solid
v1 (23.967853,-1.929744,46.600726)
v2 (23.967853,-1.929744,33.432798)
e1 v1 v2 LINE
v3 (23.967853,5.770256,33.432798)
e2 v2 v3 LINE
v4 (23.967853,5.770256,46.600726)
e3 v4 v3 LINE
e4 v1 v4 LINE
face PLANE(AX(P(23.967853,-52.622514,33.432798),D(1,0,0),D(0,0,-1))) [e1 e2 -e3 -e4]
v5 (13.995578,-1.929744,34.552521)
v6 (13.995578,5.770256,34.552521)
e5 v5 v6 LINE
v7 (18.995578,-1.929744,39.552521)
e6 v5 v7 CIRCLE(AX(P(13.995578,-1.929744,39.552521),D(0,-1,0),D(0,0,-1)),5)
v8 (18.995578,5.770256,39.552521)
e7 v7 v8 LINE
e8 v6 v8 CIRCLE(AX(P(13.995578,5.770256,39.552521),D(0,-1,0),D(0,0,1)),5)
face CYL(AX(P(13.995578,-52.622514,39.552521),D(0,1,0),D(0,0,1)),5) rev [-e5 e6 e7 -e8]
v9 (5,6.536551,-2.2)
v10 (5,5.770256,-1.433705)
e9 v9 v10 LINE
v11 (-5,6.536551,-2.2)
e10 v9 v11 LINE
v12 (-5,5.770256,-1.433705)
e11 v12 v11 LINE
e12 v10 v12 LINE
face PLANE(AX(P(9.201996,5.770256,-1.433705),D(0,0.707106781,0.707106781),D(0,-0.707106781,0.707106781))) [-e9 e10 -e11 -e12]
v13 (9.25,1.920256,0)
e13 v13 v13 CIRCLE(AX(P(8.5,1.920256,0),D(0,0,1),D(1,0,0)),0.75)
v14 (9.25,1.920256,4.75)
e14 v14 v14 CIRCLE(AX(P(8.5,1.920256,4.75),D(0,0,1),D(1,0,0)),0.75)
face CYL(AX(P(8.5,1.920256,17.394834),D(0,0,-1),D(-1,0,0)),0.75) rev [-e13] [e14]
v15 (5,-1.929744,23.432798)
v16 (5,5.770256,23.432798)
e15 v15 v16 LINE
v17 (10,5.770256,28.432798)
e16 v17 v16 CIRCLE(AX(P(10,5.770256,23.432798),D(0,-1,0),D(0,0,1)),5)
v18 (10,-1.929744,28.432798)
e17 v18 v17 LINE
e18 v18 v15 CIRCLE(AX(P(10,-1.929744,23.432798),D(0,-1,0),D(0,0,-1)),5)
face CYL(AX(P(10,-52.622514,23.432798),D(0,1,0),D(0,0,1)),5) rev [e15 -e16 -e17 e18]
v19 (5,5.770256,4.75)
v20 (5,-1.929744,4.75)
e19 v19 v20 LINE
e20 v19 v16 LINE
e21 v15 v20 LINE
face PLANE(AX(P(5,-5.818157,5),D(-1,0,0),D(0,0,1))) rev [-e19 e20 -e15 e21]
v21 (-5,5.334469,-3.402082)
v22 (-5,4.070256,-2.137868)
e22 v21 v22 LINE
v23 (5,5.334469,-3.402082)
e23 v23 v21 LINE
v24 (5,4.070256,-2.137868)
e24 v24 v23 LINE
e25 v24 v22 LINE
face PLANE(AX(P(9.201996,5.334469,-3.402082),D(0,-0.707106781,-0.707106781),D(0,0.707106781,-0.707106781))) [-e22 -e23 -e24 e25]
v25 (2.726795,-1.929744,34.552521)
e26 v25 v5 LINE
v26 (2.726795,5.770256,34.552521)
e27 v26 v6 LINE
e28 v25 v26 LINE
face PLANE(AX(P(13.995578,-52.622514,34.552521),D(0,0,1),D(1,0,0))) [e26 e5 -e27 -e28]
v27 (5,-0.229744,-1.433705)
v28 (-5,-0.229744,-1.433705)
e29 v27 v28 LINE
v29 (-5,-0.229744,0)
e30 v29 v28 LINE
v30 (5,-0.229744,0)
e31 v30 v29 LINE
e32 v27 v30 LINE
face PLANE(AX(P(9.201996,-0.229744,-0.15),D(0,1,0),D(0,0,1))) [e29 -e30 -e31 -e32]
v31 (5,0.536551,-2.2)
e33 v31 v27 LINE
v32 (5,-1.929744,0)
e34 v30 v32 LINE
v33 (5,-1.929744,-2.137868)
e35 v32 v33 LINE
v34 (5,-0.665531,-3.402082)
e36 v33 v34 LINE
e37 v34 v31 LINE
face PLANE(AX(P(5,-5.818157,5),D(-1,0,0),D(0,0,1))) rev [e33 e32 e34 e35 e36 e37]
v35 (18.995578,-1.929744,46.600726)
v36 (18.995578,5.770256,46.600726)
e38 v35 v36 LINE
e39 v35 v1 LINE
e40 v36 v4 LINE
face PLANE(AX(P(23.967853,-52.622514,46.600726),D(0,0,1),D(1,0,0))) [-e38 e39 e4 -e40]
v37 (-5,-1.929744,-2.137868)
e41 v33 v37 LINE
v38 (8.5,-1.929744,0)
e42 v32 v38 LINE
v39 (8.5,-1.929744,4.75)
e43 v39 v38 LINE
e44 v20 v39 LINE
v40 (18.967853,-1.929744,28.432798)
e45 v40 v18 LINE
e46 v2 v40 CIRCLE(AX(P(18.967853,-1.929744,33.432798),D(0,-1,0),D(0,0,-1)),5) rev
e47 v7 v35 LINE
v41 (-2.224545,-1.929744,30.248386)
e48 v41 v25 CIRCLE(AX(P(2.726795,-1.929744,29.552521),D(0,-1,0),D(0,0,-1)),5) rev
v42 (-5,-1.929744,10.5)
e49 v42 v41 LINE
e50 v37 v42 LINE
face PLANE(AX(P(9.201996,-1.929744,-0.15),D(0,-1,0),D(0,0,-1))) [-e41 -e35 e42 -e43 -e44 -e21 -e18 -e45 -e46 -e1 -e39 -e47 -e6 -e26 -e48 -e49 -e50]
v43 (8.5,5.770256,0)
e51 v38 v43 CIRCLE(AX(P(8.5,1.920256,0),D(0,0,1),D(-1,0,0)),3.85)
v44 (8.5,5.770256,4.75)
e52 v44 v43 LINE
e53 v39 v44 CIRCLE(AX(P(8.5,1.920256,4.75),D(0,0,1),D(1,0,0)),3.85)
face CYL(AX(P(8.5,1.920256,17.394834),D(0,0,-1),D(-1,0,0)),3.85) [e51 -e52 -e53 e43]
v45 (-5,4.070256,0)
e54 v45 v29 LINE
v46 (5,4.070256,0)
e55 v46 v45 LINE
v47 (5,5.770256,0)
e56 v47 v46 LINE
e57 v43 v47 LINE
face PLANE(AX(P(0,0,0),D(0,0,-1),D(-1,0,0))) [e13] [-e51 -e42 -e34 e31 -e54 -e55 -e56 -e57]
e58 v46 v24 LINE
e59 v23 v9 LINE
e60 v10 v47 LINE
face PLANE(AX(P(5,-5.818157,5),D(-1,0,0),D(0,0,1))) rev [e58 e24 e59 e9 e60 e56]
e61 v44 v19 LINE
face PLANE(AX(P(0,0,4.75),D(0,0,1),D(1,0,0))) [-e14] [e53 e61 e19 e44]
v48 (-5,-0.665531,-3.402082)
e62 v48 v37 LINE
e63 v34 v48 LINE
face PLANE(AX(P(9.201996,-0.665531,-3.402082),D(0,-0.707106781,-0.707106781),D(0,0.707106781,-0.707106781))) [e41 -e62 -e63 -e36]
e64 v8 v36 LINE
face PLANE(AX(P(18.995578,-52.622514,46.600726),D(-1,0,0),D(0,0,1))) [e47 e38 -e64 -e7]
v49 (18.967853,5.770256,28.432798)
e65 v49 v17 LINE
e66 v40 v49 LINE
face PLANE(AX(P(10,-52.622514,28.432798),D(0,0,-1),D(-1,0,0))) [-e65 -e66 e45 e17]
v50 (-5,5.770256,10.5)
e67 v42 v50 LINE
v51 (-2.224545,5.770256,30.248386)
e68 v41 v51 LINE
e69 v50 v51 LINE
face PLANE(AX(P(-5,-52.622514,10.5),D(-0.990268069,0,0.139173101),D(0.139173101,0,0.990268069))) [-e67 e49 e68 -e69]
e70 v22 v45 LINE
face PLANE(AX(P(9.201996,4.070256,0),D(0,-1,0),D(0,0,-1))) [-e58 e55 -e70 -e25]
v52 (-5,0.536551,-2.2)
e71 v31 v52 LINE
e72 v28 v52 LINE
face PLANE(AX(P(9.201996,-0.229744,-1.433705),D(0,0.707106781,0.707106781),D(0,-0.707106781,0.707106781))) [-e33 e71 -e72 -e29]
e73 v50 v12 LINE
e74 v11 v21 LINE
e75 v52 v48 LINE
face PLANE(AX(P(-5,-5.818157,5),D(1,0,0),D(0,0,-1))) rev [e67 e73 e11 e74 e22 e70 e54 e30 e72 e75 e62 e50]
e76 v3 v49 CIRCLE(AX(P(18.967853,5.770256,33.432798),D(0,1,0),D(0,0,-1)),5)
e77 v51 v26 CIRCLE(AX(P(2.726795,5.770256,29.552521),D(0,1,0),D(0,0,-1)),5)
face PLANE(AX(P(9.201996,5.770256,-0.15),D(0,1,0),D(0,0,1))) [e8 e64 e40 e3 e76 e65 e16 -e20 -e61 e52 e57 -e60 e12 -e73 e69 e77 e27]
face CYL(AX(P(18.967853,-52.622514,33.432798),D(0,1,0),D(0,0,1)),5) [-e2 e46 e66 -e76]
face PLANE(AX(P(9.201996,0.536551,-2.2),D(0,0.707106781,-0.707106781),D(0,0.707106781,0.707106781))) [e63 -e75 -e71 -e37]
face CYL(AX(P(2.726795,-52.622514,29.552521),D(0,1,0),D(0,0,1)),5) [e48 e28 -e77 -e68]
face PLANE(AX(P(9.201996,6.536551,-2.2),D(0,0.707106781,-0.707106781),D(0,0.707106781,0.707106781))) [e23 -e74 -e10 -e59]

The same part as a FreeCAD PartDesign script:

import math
import FreeCAD as App
import Part
import Sketcher
Q = App.Units.Quantity

doc = App.newDocument("Part")
body = doc.addObject("PartDesign::Body", "Body")

sketch1 = doc.addObject("Sketcher::SketchObject", "Sketch")
body.addObject(sketch1)
sketch1.AttachmentSupport = (doc.XY_Plane, [""])
sketch1.MapMode = "FlatFace"
sketch1.addGeometry([
    Part.LineSegment(App.Vector(-5, 9, 0), App.Vector(-5, -6, 0)),
    Part.LineSegment(App.Vector(-5, -6, 0), App.Vector(5, -6, 0)),
    Part.LineSegment(App.Vector(5, -6, 0), App.Vector(5, 9, 0)),
    Part.LineSegment(App.Vector(5, 9, 0), App.Vector(-5, 9, 0)),
], False)
sketch1.addConstraint([
    Sketcher.Constraint("Coincident", 0, 2, 1, 1),
    Sketcher.Constraint("Coincident", 1, 2, 2, 1),
    Sketcher.Constraint("Coincident", 2, 2, 3, 1),
    Sketcher.Constraint("Coincident", 3, 2, 0, 1),
    Sketcher.Constraint("Vertical", 0),
    Sketcher.Constraint("Horizontal", 1),
    Sketcher.Constraint("Vertical", 2),
    Sketcher.Constraint("Horizontal", 3),
    Sketcher.Constraint("DistanceX", 1, 1, 1, 2, Q("10 mm")),
    Sketcher.Constraint("DistanceX", 0, 2, -1, 1, Q("5 mm")),
    Sketcher.Constraint("DistanceY", 0, 2, 0, 1, Q("14.768412 mm")),
    Sketcher.Constraint("DistanceY", 0, 2, -1, 1, Q("5.818157 mm")),
])
pad1 = doc.addObject("PartDesign::Pad", "Pad")
body.addObject(pad1)
pad1.Profile = sketch1
pad1.Length = 5

sketch2 = doc.addObject("Sketcher::SketchObject", "Sketch001")
body.addObject(sketch2)
sketch2.AttachmentSupport = (doc.YZ_Plane, [""])
sketch2.MapMode = "FlatFace"
sketch2.AttachmentOffset = App.Placement(App.Vector(0, 0, -5), App.Rotation())
sketch2.addGeometry([
    Part.LineSegment(App.Vector(5.8, 0, 0), App.Vector(5.8, -1.4, 0)),
    Part.LineSegment(App.Vector(5.8, -1.4, 0), App.Vector(6.5, -2.2, 0)),
    Part.LineSegment(App.Vector(6.5, -2.2, 0), App.Vector(5.3, -3.4, 0)),
    Part.LineSegment(App.Vector(5.3, -3.4, 0), App.Vector(4.1, -2.1, 0)),
    Part.LineSegment(App.Vector(4.1, -2.1, 0), App.Vector(4.1, 0, 0)),
    Part.LineSegment(App.Vector(4.1, 0, 0), App.Vector(5.8, 0, 0)),
    Part.LineSegment(App.Vector(-1.9, 0, 0), App.Vector(-0.2, 0, 0)),
    Part.LineSegment(App.Vector(-0.2, 0, 0), App.Vector(-0.2, -1.4, 0)),
    Part.LineSegment(App.Vector(-0.2, -1.4, 0), App.Vector(0.5, -2.2, 0)),
    Part.LineSegment(App.Vector(0.5, -2.2, 0), App.Vector(-0.7, -3.4, 0)),
    Part.LineSegment(App.Vector(-0.7, -3.4, 0), App.Vector(-1.9, -2.1, 0)),
    Part.LineSegment(App.Vector(-1.9, -2.1, 0), App.Vector(-1.9, 0, 0)),
], False)
sketch2.addConstraint([
    Sketcher.Constraint("Coincident", 0, 2, 1, 1),
    Sketcher.Constraint("Coincident", 1, 2, 2, 1),
    Sketcher.Constraint("Coincident", 2, 2, 3, 1),
    Sketcher.Constraint("Coincident", 3, 2, 4, 1),
    Sketcher.Constraint("Coincident", 4, 2, 5, 1),
    Sketcher.Constraint("Coincident", 5, 2, 0, 1),
    Sketcher.Constraint("Coincident", 6, 2, 7, 1),
    Sketcher.Constraint("Coincident", 7, 2, 8, 1),
    Sketcher.Constraint("Coincident", 8, 2, 9, 1),
    Sketcher.Constraint("Coincident", 9, 2, 10, 1),
    Sketcher.Constraint("Coincident", 10, 2, 11, 1),
    Sketcher.Constraint("Coincident", 11, 2, 6, 1),
    Sketcher.Constraint("Vertical", 0),
    Sketcher.Constraint("Vertical", 4),
    Sketcher.Constraint("Horizontal", 5),
    Sketcher.Constraint("Horizontal", 6),
    Sketcher.Constraint("Vertical", 7),
    Sketcher.Constraint("Vertical", 11),
    Sketcher.Constraint("PointOnObject", 4, 2, -1),
    Sketcher.Constraint("PointOnObject", 6, 2, -1),
    Sketcher.Constraint("Perpendicular", 1, 2),
    Sketcher.Constraint("Perpendicular", 2, 3),
    Sketcher.Constraint("Parallel", 3, 8),
    Sketcher.Constraint("Perpendicular", 8, 9),
    Sketcher.Constraint("Perpendicular", 9, 10),
    Sketcher.Constraint("Horizontal", 0, 2, 7, 2),
    Sketcher.Constraint("Horizontal", 1, 2, 8, 2),
    Sketcher.Constraint("Horizontal", 2, 2, 9, 2),
    Sketcher.Constraint("Horizontal", 3, 2, 10, 2),
    Sketcher.Constraint("Angle", 1, Q("-45 deg")),
    Sketcher.Constraint("DistanceX", 5, 1, 5, 2, Q("1.7 mm")),
    Sketcher.Constraint("DistanceX", 6, 2, 5, 2, Q("6 mm")),
    Sketcher.Constraint("Distance", 2, Q("1.7 mm")),
    Sketcher.Constraint("DistanceY", 1, 2, -1, 1, Q("2.2 mm")),
    Sketcher.Constraint("DistanceY", 0, 2, 0, 1, Q("1.433705 mm")),
    Sketcher.Constraint("DistanceX", -1, 1, 1, 2, Q("6.536551 mm")),
])
pad2 = doc.addObject("PartDesign::Pad", "Pad001")
body.addObject(pad2)
pad2.Profile = sketch2
pad2.Length = 10

sketch3 = doc.addObject("Sketcher::SketchObject", "Sketch002")
body.addObject(sketch3)
sketch3.AttachmentSupport = (doc.XY_Plane, [""])
sketch3.MapMode = "FlatFace"
sketch3.addGeometry([
    Part.LineSegment(App.Vector(5, 9, 0), App.Vector(5, 5.8, 0)),
    Part.LineSegment(App.Vector(5, 5.8, 0), App.Vector(-5, 5.8, 0)),
    Part.LineSegment(App.Vector(-5, 5.8, 0), App.Vector(-5, 9, 0)),
    Part.LineSegment(App.Vector(-5, 9, 0), App.Vector(5, 9, 0)),
    Part.LineSegment(App.Vector(5, -1.9, 0), App.Vector(5, -5.8, 0)),
    Part.LineSegment(App.Vector(5, -5.8, 0), App.Vector(-5, -5.8, 0)),
    Part.LineSegment(App.Vector(-5, -5.8, 0), App.Vector(-5, -1.9, 0)),
    Part.LineSegment(App.Vector(-5, -1.9, 0), App.Vector(5, -1.9, 0)),
], False)
sketch3.addConstraint([
    Sketcher.Constraint("Coincident", 0, 2, 1, 1),
    Sketcher.Constraint("Coincident", 1, 2, 2, 1),
    Sketcher.Constraint("Coincident", 2, 2, 3, 1),
    Sketcher.Constraint("Coincident", 3, 2, 0, 1),
    Sketcher.Constraint("Coincident", 4, 2, 5, 1),
    Sketcher.Constraint("Coincident", 5, 2, 6, 1),
    Sketcher.Constraint("Coincident", 6, 2, 7, 1),
    Sketcher.Constraint("Coincident", 7, 2, 4, 1),
    Sketcher.Constraint("Vertical", 0),
    Sketcher.Constraint("Horizontal", 1),
    Sketcher.Constraint("Vertical", 2),
    Sketcher.Constraint("Horizontal", 3),
    Sketcher.Constraint("Vertical", 4),
    Sketcher.Constraint("Horizontal", 5),
    Sketcher.Constraint("Vertical", 6),
    Sketcher.Constraint("Horizontal", 7),
    Sketcher.Constraint("Vertical", 3, 2, 4, 2),
    Sketcher.Constraint("Vertical", 2, 2, 5, 2),
    Sketcher.Constraint("DistanceX", 1, 2, 1, 1, Q("10 mm")),
    Sketcher.Constraint("DistanceX", -1, 1, 0, 2, Q("5 mm")),
    Sketcher.Constraint("DistanceY", 0, 2, 0, 1, Q("3.18 mm")),
    Sketcher.Constraint("DistanceY", 6, 2, 1, 2, Q("7.7 mm")),
    Sketcher.Constraint("DistanceY", 4, 2, 4, 1, Q("3.888412 mm")),
    Sketcher.Constraint("DistanceY", -1, 1, 0, 2, Q("5.770256 mm")),
])
pocket1 = doc.addObject("PartDesign::Pocket", "Pocket")
body.addObject(pocket1)
pocket1.Profile = sketch3
pocket1.Length = 5
pocket1.Reversed = True

sketch4 = doc.addObject("Sketcher::SketchObject", "Sketch003")
body.addObject(sketch4)
sketch4.AttachmentSupport = (doc.XZ_Plane, [""])
sketch4.MapMode = "FlatFace"
sketch4.AttachmentOffset = App.Placement(App.Vector(0, 0, -5.770256), App.Rotation())
sketch4.addGeometry([
    Part.LineSegment(App.Vector(-5, 5, 0), App.Vector(-5, 10.5, 0)),
    Part.LineSegment(App.Vector(-5, 10.5, 0), App.Vector(-2.2, 30.2, 0)),
    Part.ArcOfCircle(Part.Circle(App.Vector(2.7, 29.6, 0), App.Vector(0, 0, 1), 5), math.radians(90), math.radians(172)),
    Part.LineSegment(App.Vector(2.7, 34.6, 0), App.Vector(14, 34.6, 0)),
    Part.ArcOfCircle(Part.Circle(App.Vector(14, 39.6, 0), App.Vector(0, 0, 1), 5), math.radians(-90), math.radians(0)),
    Part.LineSegment(App.Vector(19, 39.6, 0), App.Vector(19, 46.6, 0)),
    Part.LineSegment(App.Vector(19, 46.6, 0), App.Vector(24, 46.6, 0)),
    Part.LineSegment(App.Vector(24, 46.6, 0), App.Vector(24, 33.4, 0)),
    Part.ArcOfCircle(Part.Circle(App.Vector(19, 33.4, 0), App.Vector(0, 0, 1), 5), math.radians(-90), math.radians(0)),
    Part.LineSegment(App.Vector(19, 28.4, 0), App.Vector(10, 28.4, 0)),
    Part.ArcOfCircle(Part.Circle(App.Vector(10, 23.4, 0), App.Vector(0, 0, 1), 5), math.radians(90), math.radians(180)),
    Part.LineSegment(App.Vector(5, 23.4, 0), App.Vector(5, 5, 0)),
    Part.LineSegment(App.Vector(5, 5, 0), App.Vector(-5, 5, 0)),
], False)
sketch4.addConstraint([
    Sketcher.Constraint("Coincident", 0, 2, 1, 1),
    Sketcher.Constraint("Tangent", 1, 2, 2, 2),
    Sketcher.Constraint("Tangent", 2, 1, 3, 1),
    Sketcher.Constraint("Tangent", 3, 2, 4, 1),
    Sketcher.Constraint("Tangent", 4, 2, 5, 1),
    Sketcher.Constraint("Coincident", 5, 2, 6, 1),
    Sketcher.Constraint("Coincident", 6, 2, 7, 1),
    Sketcher.Constraint("Tangent", 7, 2, 8, 2),
    Sketcher.Constraint("Tangent", 8, 1, 9, 1),
    Sketcher.Constraint("Tangent", 9, 2, 10, 1),
    Sketcher.Constraint("Tangent", 10, 2, 11, 1),
    Sketcher.Constraint("Coincident", 11, 2, 12, 1),
    Sketcher.Constraint("Coincident", 12, 2, 0, 1),
    Sketcher.Constraint("Vertical", 0),
    Sketcher.Constraint("Horizontal", 3),
    Sketcher.Constraint("Vertical", 5),
    Sketcher.Constraint("Horizontal", 6),
    Sketcher.Constraint("Vertical", 7),
    Sketcher.Constraint("Horizontal", 9),
    Sketcher.Constraint("Vertical", 11),
    Sketcher.Constraint("Horizontal", 12),
    Sketcher.Constraint("Equal", 2, 4),
    Sketcher.Constraint("Equal", 4, 8),
    Sketcher.Constraint("Equal", 8, 10),
    Sketcher.Constraint("Radius", 2, Q("5 mm")),
    Sketcher.Constraint("DistanceX", 12, 2, 12, 1, Q("10 mm")),
    Sketcher.Constraint("Angle", 1, Q("82 deg")),
    Sketcher.Constraint("DistanceY", 0, 1, 0, 2, Q("5.5 mm")),
    Sketcher.Constraint("DistanceX", -1, 1, 10, 3, Q("10 mm")),
    Sketcher.Constraint("DistanceY", -1, 1, 11, 2, Q("5 mm")),
    Sketcher.Constraint("DistanceY", 7, 2, 7, 1, Q("13.167928 mm")),
    Sketcher.Constraint("DistanceX", 3, 1, 3, 2, Q("11.268783 mm")),
    Sketcher.Constraint("DistanceX", 6, 1, 6, 2, Q("4.972275 mm")),
    Sketcher.Constraint("DistanceX", 9, 2, 9, 1, Q("8.967853 mm")),
    Sketcher.Constraint("DistanceY", 5, 1, 5, 2, Q("7.048205 mm")),
])
pad3 = doc.addObject("PartDesign::Pad", "Pad002")
body.addObject(pad3)
pad3.Profile = sketch4
pad3.Length = 7.7

sketch5 = doc.addObject("Sketcher::SketchObject", "Sketch004")
body.addObject(sketch5)
sketch5.AttachmentSupport = (doc.XY_Plane, [""])
sketch5.MapMode = "FlatFace"
sketch5.addGeometry([
    Part.LineSegment(App.Vector(8.5, 5.8, 0), App.Vector(5, 5.8, 0)),
    Part.LineSegment(App.Vector(5, 5.8, 0), App.Vector(5, -1.9, 0)),
    Part.LineSegment(App.Vector(5, -1.9, 0), App.Vector(8.5, -1.9, 0)),
    Part.ArcOfCircle(Part.Circle(App.Vector(8.5, 1.9, 0), App.Vector(0, 0, 1), 3.9), math.radians(-90), math.radians(90)),
    Part.Circle(App.Vector(8.5, 1.9, 0), App.Vector(0, 0, 1), 0.8),
], False)
sketch5.addConstraint([
    Sketcher.Constraint("Coincident", 0, 2, 1, 1),
    Sketcher.Constraint("Coincident", 1, 2, 2, 1),
    Sketcher.Constraint("Tangent", 2, 2, 3, 1),
    Sketcher.Constraint("Tangent", 3, 2, 0, 1),
    Sketcher.Constraint("Horizontal", 0),
    Sketcher.Constraint("Vertical", 1),
    Sketcher.Constraint("Horizontal", 2),
    Sketcher.Constraint("Coincident", 4, 3, 3, 3),
    Sketcher.Constraint("Diameter", 4, Q("1.5 mm")),
    Sketcher.Constraint("Radius", 3, Q("3.85 mm")),
    Sketcher.Constraint("DistanceX", 0, 2, 0, 1, Q("3.5 mm")),
    Sketcher.Constraint("DistanceX", -1, 1, 0, 2, Q("5 mm")),
    Sketcher.Constraint("DistanceY", -1, 1, 3, 3, Q("1.920256 mm")),
])
pad4 = doc.addObject("PartDesign::Pad", "Pad003")
body.addObject(pad4)
pad4.Profile = sketch5
pad4.Length = 4.75

doc.recompute()
